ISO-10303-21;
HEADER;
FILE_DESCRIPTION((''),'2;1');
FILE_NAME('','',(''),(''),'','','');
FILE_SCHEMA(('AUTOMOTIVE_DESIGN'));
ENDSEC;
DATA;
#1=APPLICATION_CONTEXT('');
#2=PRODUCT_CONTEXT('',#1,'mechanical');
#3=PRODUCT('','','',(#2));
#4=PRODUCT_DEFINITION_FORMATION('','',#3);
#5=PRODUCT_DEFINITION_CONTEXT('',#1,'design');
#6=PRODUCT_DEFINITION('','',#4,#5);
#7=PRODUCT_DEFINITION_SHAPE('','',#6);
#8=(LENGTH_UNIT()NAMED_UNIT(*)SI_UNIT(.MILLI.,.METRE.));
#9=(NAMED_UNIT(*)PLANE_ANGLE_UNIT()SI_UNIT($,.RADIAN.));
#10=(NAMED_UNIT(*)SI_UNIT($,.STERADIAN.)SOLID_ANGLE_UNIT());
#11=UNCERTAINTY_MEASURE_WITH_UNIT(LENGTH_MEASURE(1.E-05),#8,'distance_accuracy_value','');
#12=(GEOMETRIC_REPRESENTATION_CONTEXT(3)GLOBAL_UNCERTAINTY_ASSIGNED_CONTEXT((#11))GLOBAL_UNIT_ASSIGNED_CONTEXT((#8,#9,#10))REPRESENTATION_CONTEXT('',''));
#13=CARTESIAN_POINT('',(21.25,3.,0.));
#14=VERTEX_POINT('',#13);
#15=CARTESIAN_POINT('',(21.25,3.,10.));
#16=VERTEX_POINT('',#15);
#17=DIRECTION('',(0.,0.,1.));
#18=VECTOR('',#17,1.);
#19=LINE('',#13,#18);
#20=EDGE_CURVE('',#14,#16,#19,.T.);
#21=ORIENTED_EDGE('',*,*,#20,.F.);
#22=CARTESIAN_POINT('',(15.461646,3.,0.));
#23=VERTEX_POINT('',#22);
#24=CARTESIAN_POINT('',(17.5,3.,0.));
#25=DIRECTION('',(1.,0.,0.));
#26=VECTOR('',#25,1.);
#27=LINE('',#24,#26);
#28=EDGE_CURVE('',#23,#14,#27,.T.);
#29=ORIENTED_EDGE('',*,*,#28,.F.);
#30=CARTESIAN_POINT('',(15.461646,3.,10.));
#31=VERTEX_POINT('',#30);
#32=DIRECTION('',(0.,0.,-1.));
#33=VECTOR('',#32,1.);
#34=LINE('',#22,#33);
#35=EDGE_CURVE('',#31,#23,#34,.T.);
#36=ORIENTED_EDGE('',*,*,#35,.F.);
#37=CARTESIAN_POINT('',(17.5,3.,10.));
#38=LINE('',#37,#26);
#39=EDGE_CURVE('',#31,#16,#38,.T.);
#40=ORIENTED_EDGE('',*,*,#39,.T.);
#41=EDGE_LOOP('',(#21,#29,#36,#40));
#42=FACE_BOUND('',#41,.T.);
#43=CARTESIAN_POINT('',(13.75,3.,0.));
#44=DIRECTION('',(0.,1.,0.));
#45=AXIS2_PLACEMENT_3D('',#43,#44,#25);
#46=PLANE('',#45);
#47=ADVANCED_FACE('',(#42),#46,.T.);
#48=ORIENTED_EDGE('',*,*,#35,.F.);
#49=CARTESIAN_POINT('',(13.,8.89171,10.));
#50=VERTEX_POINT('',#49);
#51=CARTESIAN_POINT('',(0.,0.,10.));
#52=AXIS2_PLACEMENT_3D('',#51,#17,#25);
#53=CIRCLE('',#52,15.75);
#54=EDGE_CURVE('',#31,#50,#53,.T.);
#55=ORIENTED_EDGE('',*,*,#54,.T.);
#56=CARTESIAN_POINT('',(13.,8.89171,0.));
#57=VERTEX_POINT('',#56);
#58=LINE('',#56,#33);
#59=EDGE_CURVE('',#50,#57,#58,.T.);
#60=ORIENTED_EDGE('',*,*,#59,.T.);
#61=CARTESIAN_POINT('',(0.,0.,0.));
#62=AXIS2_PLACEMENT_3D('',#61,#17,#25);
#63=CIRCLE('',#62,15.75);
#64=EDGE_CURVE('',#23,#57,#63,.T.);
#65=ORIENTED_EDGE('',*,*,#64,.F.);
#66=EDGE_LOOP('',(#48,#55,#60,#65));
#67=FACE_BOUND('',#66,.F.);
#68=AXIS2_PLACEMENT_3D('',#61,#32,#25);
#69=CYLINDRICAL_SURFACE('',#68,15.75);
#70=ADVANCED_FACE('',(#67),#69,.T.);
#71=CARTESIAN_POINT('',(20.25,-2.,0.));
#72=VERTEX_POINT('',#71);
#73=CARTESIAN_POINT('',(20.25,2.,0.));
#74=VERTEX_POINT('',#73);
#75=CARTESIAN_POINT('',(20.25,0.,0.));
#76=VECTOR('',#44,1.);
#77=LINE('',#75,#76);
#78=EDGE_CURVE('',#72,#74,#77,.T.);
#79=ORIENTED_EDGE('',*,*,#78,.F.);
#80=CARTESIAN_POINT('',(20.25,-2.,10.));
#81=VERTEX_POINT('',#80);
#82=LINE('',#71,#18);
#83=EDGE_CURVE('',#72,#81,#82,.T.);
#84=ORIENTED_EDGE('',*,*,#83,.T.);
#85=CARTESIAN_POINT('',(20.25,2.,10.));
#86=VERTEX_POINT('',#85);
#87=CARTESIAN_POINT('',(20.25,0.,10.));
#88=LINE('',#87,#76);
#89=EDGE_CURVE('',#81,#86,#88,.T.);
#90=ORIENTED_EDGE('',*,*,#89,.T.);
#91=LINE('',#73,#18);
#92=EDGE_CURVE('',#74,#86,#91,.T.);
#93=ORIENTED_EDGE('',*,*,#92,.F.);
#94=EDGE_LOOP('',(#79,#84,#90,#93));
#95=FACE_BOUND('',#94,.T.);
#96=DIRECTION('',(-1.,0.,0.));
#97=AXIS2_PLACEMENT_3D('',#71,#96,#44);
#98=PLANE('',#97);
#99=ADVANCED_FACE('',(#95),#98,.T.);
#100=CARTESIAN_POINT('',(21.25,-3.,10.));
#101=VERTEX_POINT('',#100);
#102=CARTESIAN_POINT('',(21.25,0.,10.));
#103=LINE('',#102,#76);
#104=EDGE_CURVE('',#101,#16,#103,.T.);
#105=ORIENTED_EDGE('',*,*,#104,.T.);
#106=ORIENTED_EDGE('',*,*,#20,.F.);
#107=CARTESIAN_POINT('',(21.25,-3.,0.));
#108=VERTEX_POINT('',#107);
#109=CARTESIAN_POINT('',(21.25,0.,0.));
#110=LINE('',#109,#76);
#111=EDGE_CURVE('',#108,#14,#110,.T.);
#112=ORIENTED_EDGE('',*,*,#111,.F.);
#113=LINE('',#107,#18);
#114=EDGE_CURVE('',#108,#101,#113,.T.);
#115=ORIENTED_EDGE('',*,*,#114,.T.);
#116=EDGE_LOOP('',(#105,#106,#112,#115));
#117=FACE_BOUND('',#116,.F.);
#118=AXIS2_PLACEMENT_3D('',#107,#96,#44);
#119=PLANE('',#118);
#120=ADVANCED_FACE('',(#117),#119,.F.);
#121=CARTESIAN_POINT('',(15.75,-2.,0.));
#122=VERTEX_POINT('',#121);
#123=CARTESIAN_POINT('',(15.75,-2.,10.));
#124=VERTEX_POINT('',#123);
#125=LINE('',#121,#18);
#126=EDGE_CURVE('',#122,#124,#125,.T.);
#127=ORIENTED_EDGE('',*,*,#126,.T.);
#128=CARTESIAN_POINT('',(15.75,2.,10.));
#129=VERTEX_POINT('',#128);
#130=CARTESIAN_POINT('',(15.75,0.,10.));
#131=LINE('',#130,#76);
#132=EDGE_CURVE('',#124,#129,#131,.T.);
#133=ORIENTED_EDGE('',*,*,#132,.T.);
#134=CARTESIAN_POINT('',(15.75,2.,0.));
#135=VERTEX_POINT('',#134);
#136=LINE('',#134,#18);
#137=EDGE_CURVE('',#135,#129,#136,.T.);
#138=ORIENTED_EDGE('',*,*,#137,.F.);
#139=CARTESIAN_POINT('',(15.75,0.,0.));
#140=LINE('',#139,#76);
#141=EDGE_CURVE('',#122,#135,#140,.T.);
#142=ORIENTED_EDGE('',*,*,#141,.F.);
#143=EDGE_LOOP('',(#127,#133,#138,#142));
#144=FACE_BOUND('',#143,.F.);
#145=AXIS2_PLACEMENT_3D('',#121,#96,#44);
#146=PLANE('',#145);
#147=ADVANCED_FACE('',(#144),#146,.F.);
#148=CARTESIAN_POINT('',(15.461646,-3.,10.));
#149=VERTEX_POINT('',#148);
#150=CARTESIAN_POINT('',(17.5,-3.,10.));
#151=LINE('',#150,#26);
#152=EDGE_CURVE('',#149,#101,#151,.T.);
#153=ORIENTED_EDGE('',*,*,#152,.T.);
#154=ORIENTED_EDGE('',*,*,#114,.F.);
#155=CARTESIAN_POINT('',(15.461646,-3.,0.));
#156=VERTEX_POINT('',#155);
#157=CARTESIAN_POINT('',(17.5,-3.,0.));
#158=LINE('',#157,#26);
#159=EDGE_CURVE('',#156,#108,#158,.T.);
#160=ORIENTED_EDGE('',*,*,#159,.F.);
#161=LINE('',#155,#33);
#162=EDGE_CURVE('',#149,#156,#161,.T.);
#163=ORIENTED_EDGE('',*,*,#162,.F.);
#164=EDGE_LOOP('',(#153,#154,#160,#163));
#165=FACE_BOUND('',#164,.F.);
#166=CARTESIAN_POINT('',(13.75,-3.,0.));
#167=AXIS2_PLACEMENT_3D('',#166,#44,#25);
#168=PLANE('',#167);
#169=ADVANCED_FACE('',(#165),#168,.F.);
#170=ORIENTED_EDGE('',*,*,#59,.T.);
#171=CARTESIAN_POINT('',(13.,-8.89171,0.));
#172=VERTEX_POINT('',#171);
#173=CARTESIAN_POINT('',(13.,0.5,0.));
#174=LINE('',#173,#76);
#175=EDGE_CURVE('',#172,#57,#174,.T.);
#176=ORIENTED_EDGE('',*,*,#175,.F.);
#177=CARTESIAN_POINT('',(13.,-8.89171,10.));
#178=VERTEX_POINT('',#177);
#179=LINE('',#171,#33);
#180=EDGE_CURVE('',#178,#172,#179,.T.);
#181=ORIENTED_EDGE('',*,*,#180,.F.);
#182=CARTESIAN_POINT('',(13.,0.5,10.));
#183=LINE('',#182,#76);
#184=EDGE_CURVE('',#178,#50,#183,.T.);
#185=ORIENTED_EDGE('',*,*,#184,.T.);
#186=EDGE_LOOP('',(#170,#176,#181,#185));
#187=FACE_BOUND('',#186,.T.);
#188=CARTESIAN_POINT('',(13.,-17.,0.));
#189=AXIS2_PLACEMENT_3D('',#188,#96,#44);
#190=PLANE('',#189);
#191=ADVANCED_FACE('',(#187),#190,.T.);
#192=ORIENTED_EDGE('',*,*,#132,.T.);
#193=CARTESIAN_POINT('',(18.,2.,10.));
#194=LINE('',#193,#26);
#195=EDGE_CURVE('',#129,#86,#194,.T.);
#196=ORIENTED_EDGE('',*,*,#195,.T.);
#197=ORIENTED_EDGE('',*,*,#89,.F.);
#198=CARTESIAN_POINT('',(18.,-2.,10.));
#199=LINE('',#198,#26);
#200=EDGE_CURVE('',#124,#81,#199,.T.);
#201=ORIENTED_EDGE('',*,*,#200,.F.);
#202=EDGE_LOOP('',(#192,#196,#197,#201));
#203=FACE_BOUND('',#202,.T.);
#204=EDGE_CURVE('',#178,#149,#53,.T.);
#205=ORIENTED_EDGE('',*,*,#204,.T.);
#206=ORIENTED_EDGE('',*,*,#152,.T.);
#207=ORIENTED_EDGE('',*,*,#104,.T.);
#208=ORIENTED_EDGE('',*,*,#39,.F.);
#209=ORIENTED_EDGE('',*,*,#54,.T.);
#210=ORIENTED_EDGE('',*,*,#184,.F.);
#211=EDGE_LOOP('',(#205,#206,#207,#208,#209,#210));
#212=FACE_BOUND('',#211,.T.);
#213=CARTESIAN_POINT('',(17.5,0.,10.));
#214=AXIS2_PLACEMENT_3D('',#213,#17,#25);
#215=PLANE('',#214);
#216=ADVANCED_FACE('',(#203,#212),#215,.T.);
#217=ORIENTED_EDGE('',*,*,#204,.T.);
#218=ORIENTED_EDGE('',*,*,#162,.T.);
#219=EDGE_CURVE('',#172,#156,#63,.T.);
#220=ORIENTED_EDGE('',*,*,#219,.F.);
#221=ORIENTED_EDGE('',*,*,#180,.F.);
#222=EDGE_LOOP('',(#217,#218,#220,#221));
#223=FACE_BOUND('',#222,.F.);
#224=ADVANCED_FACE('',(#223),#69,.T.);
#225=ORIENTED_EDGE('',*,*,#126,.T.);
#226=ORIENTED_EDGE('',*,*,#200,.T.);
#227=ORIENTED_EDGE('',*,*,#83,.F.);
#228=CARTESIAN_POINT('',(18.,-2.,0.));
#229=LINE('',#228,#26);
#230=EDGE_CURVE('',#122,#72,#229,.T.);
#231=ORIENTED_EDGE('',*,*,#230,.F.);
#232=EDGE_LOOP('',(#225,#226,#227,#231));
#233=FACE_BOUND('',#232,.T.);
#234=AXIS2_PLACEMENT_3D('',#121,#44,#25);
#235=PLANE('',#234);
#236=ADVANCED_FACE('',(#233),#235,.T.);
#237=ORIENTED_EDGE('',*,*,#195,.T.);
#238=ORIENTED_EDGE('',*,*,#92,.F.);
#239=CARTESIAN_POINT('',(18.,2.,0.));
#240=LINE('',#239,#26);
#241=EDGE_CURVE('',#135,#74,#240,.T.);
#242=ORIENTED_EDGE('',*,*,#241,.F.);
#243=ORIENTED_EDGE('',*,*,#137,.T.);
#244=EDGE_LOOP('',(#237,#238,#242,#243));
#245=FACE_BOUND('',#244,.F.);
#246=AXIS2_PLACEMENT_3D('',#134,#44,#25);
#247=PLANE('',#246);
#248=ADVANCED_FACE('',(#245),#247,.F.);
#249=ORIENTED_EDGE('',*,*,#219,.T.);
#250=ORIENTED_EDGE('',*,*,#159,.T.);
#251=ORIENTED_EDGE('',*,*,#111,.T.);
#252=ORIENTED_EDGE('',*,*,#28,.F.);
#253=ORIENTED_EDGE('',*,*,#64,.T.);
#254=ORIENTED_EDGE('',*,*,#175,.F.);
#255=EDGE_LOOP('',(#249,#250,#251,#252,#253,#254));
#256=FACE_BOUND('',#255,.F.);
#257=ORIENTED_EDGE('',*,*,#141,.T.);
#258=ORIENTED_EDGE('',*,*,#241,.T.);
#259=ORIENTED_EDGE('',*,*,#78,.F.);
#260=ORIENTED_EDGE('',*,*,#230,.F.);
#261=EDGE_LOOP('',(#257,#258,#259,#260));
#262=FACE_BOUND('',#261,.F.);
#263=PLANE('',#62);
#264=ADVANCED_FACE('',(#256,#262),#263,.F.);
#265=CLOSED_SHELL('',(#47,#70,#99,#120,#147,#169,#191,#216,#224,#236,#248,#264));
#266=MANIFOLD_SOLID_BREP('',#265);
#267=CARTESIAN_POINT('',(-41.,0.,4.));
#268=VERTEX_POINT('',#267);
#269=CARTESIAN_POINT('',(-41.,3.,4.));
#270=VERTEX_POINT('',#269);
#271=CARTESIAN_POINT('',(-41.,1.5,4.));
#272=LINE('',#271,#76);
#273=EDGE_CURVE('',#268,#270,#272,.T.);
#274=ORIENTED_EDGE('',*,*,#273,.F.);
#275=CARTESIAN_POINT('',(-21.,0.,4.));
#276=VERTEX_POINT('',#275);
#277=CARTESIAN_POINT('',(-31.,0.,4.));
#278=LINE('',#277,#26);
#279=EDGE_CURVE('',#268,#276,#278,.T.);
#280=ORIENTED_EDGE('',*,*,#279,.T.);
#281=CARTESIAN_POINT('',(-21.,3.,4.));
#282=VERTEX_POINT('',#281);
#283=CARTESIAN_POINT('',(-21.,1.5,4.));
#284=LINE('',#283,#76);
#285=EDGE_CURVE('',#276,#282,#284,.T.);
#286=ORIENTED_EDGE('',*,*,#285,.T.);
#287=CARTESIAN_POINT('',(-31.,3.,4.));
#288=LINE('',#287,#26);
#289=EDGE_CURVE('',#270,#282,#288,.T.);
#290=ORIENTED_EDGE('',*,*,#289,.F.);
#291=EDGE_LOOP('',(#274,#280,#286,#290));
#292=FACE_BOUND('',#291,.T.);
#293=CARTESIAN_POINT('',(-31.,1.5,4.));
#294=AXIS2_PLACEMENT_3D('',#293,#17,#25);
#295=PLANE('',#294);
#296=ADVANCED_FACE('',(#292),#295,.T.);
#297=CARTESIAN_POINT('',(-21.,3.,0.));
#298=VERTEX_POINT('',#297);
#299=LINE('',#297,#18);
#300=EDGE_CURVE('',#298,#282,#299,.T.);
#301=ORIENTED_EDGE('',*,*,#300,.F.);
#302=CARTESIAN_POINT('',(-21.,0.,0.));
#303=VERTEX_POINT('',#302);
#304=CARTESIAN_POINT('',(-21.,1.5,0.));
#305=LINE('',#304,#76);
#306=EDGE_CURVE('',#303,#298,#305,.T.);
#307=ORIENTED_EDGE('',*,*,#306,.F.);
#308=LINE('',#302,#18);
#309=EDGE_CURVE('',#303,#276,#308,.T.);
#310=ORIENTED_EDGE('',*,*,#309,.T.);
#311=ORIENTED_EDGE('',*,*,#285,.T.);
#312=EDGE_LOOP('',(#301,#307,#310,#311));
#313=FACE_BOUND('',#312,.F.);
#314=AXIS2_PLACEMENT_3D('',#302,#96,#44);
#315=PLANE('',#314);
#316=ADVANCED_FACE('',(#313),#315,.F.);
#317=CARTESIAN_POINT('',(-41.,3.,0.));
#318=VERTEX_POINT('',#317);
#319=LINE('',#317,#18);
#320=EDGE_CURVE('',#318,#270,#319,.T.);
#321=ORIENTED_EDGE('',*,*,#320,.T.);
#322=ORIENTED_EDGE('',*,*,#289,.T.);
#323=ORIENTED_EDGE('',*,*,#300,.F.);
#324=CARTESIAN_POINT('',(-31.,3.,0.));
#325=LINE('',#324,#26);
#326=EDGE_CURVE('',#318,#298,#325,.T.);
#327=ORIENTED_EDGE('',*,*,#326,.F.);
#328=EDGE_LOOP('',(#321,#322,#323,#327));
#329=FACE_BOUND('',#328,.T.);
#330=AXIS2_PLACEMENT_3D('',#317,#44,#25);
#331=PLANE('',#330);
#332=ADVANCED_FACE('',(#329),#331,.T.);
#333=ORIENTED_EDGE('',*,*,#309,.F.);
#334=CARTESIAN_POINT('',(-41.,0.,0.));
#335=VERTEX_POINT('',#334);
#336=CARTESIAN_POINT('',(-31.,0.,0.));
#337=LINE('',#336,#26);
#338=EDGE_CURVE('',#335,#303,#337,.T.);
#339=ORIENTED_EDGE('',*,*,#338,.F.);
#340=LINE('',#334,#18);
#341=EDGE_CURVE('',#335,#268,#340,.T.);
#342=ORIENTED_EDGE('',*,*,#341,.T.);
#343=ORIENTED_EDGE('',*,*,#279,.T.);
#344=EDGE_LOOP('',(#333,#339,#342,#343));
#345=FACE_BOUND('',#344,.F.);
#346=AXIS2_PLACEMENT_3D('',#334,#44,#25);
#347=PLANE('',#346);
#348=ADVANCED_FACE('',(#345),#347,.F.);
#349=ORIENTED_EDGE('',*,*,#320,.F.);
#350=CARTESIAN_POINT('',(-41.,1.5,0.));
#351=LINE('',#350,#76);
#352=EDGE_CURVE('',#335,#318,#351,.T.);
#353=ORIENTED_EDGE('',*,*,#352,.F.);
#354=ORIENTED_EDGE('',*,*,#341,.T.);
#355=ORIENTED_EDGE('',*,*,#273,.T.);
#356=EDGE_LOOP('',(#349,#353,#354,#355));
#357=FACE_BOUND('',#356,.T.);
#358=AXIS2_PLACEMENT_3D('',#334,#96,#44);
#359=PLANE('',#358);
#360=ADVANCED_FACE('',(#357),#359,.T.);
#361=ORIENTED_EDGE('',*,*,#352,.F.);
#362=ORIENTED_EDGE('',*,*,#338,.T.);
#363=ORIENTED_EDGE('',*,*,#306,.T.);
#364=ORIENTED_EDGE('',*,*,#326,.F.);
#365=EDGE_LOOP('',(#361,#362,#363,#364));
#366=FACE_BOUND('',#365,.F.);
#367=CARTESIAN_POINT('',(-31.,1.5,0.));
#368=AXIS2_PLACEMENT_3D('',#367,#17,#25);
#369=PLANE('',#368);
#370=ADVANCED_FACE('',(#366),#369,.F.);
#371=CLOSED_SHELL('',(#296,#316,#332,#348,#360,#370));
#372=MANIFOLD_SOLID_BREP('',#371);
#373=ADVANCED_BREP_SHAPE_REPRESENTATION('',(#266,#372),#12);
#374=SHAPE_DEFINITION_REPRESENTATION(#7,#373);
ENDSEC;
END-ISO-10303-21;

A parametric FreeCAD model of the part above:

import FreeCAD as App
import Part
import Sketcher

V = App.Vector
Q = App.Units.Quantity

doc = App.newDocument("Part")
params = doc.addObject("Spreadsheet::Sheet", "Params")
for row, (alias, value) in enumerate([
    ("sketch1_diameter", "31.5 mm"),
    ("pad1_length", "10 mm"),
    ("sketch2_height", "6 mm"),
    ("sketch2_width", "7.5 mm"),
    ("pad2_length", "10 mm"),
    ("sketch3_height", "4 mm"),
    ("sketch3_width", "4.5 mm"),
    ("pocket1_length", "10 mm"),
    ("sketch4_width", "30 mm"),
    ("sketch4_height", "35 mm"),
    ("pocket2_length", "10 mm"),
    ("sketch5_width", "20 mm"),
    ("sketch5_height", "3 mm"),
    ("pad3_length", "4 mm"),
], start=1):
    params.set(f"A{row}", alias)
    params.set(f"B{row}", "=" + value)
    params.setAlias(f"B{row}", alias)

body = doc.addObject("PartDesign::Body", "Body")

sketch1 = body.newObject("Sketcher::SketchObject", "Sketch")
sketch1.AttachmentSupport = (doc.getObject("XY_Plane"), [""])
sketch1.MapMode = "FlatFace"
sketch1.addGeometry(Part.Circle(V(0, 0, 0), V(0, 0, 1), 15.75), False)
sketch1.addConstraint(Sketcher.Constraint("Coincident", 0, 3, -1, 1))
sketch1.addConstraint(Sketcher.Constraint("Diameter", 0, Q("31.5 mm")))
sketch1.setExpression("Constraints[1]", "Params.sketch1_diameter")
pad1 = body.newObject("PartDesign::Pad", "Pad")
pad1.Profile = sketch1
pad1.setExpression("Length", "Params.pad1_length")

sketch2 = body.newObject("Sketcher::SketchObject", "Sketch001")
sketch2.AttachmentSupport = (doc.getObject("XY_Plane"), [""])
sketch2.MapMode = "FlatFace"
sketch2.addGeometry(Part.LineSegment(V(13.75, 3, 0), V(13.75, -3, 0)), False)
sketch2.addGeometry(Part.LineSegment(V(13.75, -3, 0), V(21.25, -3, 0)), False)
sketch2.addGeometry(Part.LineSegment(V(21.25, -3, 0), V(21.25, 3, 0)), False)
sketch2.addGeometry(Part.LineSegment(V(21.25, 3, 0), V(13.75, 3, 0)), False)
sketch2.addConstraint(Sketcher.Constraint("Coincident", 0, 2, 1, 1))
sketch2.addConstraint(Sketcher.Constraint("Coincident", 1, 2, 2, 1))
sketch2.addConstraint(Sketcher.Constraint("Coincident", 2, 2, 3, 1))
sketch2.addConstraint(Sketcher.Constraint("Coincident", 3, 2, 0, 1))
sketch2.addConstraint(Sketcher.Constraint("Vertical", 0))
sketch2.addConstraint(Sketcher.Constraint("Horizontal", 1))
sketch2.addConstraint(Sketcher.Constraint("Vertical", 2))
sketch2.addConstraint(Sketcher.Constraint("Horizontal", 3))
sketch2.addConstraint(Sketcher.Constraint("DistanceY", 0, 2, 0, 1, Q("6 mm")))
sketch2.addConstraint(Sketcher.Constraint("DistanceX", 1, 1, 1, 2, Q("7.5 mm")))
sketch2.addConstraint(Sketcher.Constraint("DistanceY", 0, 2, -1, 1, Q("3 mm")))
sketch2.addConstraint(Sketcher.Constraint("DistanceX", -1, 1, 0, 2, Q("13.75 mm")))
sketch2.setExpression("Constraints[8]", "Params.sketch2_height")
sketch2.setExpression("Constraints[9]", "Params.sketch2_width")
pad2 = body.newObject("PartDesign::Pad", "Pad001")
pad2.Profile = sketch2
pad2.setExpression("Length", "Params.pad2_length")

sketch3 = body.newObject("Sketcher::SketchObject", "Sketch002")
sketch3.AttachmentSupport = (doc.getObject("XY_Plane"), [""])
sketch3.MapMode = "FlatFace"
sketch3.addGeometry(Part.LineSegment(V(15.75, 2, 0), V(15.75, -2, 0)), False)
sketch3.addGeometry(Part.LineSegment(V(15.75, -2, 0), V(20.25, -2, 0)), False)
sketch3.addGeometry(Part.LineSegment(V(20.25, -2, 0), V(20.25, 2, 0)), False)
sketch3.addGeometry(Part.LineSegment(V(20.25, 2, 0), V(15.75, 2, 0)), False)
sketch3.addConstraint(Sketcher.Constraint("Coincident", 0, 2, 1, 1))
sketch3.addConstraint(Sketcher.Constraint("Coincident", 1, 2, 2, 1))
sketch3.addConstraint(Sketcher.Constraint("Coincident", 2, 2, 3, 1))
sketch3.addConstraint(Sketcher.Constraint("Coincident", 3, 2, 0, 1))
sketch3.addConstraint(Sketcher.Constraint("Vertical", 0))
sketch3.addConstraint(Sketcher.Constraint("Horizontal", 1))
sketch3.addConstraint(Sketcher.Constraint("Vertical", 2))
sketch3.addConstraint(Sketcher.Constraint("Horizontal", 3))
sketch3.addConstraint(Sketcher.Constraint("DistanceY", 0, 2, 0, 1, Q("4 mm")))
sketch3.addConstraint(Sketcher.Constraint("DistanceX", 1, 1, 1, 2, Q("4.5 mm")))
sketch3.addConstraint(Sketcher.Constraint("DistanceY", 0, 2, -1, 1, Q("2 mm")))
sketch3.addConstraint(Sketcher.Constraint("DistanceX", -1, 1, 0, 2, Q("15.75 mm")))
sketch3.setExpression("Constraints[8]", "Params.sketch3_height")
sketch3.setExpression("Constraints[9]", "Params.sketch3_width")
pocket1 = body.newObject("PartDesign::Pocket", "Pocket")
pocket1.Profile = sketch3
pocket1.setExpression("Length", "Params.pocket1_length")
pocket1.Reversed = True

sketch4 = body.newObject("Sketcher::SketchObject", "Sketch003")
sketch4.AttachmentSupport = (doc.getObject("XY_Plane"), [""])
sketch4.MapMode = "FlatFace"
sketch4.addGeometry(Part.LineSegment(V(-17, 18, 0), V(-17, -17, 0)), False)
sketch4.addGeometry(Part.LineSegment(V(-17, -17, 0), V(13, -17, 0)), False)
sketch4.addGeometry(Part.LineSegment(V(13, -17, 0), V(13, 18, 0)), False)
sketch4.addGeometry(Part.LineSegment(V(13, 18, 0), V(-17, 18, 0)), False)
sketch4.addConstraint(Sketcher.Constraint("Coincident", 0, 2, 1, 1))
sketch4.addConstraint(Sketcher.Constraint("Coincident", 1, 2, 2, 1))
sketch4.addConstraint(Sketcher.Constraint("Coincident", 2, 2, 3, 1))
sketch4.addConstraint(Sketcher.Constraint("Coincident", 3, 2, 0, 1))
sketch4.addConstraint(Sketcher.Constraint("Vertical", 0))
sketch4.addConstraint(Sketcher.Constraint("Horizontal", 1))
sketch4.addConstraint(Sketcher.Constraint("Vertical", 2))
sketch4.addConstraint(Sketcher.Constraint("Horizontal", 3))
sketch4.addConstraint(Sketcher.Constraint("DistanceX", 1, 1, 1, 2, Q("30 mm")))
sketch4.addConstraint(Sketcher.Constraint("DistanceY", 0, 2, 0, 1, Q("35 mm")))
sketch4.addConstraint(Sketcher.Constraint("DistanceX", 0, 2, -1, 1, Q("17 mm")))
sketch4.addConstraint(Sketcher.Constraint("DistanceY", 0, 2, -1, 1, Q("17 mm")))
sketch4.setExpression("Constraints[8]", "Params.sketch4_width")
sketch4.setExpression("Constraints[9]", "Params.sketch4_height")
pocket2 = body.newObject("PartDesign::Pocket", "Pocket001")
pocket2.Profile = sketch4
pocket2.setExpression("Length", "Params.pocket2_length")
pocket2.Reversed = True
body2 = doc.addObject("PartDesign::Body", "Body001")

sketch5 = body2.newObject("Sketcher::SketchObject", "Sketch004")
sketch5.AttachmentSupport = (doc.getObject("XY_Plane001"), [""])
sketch5.MapMode = "FlatFace"
sketch5.addGeometry(Part.LineSegment(V(-41, 3, 0), V(-41, 0, 0)), False)
sketch5.addGeometry(Part.LineSegment(V(-41, 0, 0), V(-21, 0, 0)), False)
sketch5.addGeometry(Part.LineSegment(V(-21, 0, 0), V(-21, 3, 0)), False)
sketch5.addGeometry(Part.LineSegment(V(-21, 3, 0), V(-41, 3, 0)), False)
sketch5.addConstraint(Sketcher.Constraint("Coincident", 0, 2, 1, 1))
sketch5.addConstraint(Sketcher.Constraint("Coincident", 1, 2, 2, 1))
sketch5.addConstraint(Sketcher.Constraint("Coincident", 2, 2, 3, 1))
sketch5.addConstraint(Sketcher.Constraint("Coincident", 3, 2, 0, 1))
sketch5.addConstraint(Sketcher.Constraint("Vertical", 0))
sketch5.addConstraint(Sketcher.Constraint("Horizontal", 1))
sketch5.addConstraint(Sketcher.Constraint("Vertical", 2))
sketch5.addConstraint(Sketcher.Constraint("Horizontal", 3))
sketch5.addConstraint(Sketcher.Constraint("PointOnObject", 0, 2, -1))
sketch5.addConstraint(Sketcher.Constraint("DistanceX", 1, 1, 1, 2, Q("20 mm")))
sketch5.addConstraint(Sketcher.Constraint("DistanceY", 0, 2, 0, 1, Q("3 mm")))
sketch5.addConstraint(Sketcher.Constraint("DistanceX", 0, 2, -1, 1, Q("41 mm")))
sketch5.setExpression("Constraints[9]", "Params.sketch5_width")
sketch5.setExpression("Constraints[10]", "Params.sketch5_height")
pad3 = body2.newObject("PartDesign::Pad", "Pad002")
pad3.Profile = sketch5
pad3.setExpression("Length", "Params.pad3_length")

doc.recompute()
